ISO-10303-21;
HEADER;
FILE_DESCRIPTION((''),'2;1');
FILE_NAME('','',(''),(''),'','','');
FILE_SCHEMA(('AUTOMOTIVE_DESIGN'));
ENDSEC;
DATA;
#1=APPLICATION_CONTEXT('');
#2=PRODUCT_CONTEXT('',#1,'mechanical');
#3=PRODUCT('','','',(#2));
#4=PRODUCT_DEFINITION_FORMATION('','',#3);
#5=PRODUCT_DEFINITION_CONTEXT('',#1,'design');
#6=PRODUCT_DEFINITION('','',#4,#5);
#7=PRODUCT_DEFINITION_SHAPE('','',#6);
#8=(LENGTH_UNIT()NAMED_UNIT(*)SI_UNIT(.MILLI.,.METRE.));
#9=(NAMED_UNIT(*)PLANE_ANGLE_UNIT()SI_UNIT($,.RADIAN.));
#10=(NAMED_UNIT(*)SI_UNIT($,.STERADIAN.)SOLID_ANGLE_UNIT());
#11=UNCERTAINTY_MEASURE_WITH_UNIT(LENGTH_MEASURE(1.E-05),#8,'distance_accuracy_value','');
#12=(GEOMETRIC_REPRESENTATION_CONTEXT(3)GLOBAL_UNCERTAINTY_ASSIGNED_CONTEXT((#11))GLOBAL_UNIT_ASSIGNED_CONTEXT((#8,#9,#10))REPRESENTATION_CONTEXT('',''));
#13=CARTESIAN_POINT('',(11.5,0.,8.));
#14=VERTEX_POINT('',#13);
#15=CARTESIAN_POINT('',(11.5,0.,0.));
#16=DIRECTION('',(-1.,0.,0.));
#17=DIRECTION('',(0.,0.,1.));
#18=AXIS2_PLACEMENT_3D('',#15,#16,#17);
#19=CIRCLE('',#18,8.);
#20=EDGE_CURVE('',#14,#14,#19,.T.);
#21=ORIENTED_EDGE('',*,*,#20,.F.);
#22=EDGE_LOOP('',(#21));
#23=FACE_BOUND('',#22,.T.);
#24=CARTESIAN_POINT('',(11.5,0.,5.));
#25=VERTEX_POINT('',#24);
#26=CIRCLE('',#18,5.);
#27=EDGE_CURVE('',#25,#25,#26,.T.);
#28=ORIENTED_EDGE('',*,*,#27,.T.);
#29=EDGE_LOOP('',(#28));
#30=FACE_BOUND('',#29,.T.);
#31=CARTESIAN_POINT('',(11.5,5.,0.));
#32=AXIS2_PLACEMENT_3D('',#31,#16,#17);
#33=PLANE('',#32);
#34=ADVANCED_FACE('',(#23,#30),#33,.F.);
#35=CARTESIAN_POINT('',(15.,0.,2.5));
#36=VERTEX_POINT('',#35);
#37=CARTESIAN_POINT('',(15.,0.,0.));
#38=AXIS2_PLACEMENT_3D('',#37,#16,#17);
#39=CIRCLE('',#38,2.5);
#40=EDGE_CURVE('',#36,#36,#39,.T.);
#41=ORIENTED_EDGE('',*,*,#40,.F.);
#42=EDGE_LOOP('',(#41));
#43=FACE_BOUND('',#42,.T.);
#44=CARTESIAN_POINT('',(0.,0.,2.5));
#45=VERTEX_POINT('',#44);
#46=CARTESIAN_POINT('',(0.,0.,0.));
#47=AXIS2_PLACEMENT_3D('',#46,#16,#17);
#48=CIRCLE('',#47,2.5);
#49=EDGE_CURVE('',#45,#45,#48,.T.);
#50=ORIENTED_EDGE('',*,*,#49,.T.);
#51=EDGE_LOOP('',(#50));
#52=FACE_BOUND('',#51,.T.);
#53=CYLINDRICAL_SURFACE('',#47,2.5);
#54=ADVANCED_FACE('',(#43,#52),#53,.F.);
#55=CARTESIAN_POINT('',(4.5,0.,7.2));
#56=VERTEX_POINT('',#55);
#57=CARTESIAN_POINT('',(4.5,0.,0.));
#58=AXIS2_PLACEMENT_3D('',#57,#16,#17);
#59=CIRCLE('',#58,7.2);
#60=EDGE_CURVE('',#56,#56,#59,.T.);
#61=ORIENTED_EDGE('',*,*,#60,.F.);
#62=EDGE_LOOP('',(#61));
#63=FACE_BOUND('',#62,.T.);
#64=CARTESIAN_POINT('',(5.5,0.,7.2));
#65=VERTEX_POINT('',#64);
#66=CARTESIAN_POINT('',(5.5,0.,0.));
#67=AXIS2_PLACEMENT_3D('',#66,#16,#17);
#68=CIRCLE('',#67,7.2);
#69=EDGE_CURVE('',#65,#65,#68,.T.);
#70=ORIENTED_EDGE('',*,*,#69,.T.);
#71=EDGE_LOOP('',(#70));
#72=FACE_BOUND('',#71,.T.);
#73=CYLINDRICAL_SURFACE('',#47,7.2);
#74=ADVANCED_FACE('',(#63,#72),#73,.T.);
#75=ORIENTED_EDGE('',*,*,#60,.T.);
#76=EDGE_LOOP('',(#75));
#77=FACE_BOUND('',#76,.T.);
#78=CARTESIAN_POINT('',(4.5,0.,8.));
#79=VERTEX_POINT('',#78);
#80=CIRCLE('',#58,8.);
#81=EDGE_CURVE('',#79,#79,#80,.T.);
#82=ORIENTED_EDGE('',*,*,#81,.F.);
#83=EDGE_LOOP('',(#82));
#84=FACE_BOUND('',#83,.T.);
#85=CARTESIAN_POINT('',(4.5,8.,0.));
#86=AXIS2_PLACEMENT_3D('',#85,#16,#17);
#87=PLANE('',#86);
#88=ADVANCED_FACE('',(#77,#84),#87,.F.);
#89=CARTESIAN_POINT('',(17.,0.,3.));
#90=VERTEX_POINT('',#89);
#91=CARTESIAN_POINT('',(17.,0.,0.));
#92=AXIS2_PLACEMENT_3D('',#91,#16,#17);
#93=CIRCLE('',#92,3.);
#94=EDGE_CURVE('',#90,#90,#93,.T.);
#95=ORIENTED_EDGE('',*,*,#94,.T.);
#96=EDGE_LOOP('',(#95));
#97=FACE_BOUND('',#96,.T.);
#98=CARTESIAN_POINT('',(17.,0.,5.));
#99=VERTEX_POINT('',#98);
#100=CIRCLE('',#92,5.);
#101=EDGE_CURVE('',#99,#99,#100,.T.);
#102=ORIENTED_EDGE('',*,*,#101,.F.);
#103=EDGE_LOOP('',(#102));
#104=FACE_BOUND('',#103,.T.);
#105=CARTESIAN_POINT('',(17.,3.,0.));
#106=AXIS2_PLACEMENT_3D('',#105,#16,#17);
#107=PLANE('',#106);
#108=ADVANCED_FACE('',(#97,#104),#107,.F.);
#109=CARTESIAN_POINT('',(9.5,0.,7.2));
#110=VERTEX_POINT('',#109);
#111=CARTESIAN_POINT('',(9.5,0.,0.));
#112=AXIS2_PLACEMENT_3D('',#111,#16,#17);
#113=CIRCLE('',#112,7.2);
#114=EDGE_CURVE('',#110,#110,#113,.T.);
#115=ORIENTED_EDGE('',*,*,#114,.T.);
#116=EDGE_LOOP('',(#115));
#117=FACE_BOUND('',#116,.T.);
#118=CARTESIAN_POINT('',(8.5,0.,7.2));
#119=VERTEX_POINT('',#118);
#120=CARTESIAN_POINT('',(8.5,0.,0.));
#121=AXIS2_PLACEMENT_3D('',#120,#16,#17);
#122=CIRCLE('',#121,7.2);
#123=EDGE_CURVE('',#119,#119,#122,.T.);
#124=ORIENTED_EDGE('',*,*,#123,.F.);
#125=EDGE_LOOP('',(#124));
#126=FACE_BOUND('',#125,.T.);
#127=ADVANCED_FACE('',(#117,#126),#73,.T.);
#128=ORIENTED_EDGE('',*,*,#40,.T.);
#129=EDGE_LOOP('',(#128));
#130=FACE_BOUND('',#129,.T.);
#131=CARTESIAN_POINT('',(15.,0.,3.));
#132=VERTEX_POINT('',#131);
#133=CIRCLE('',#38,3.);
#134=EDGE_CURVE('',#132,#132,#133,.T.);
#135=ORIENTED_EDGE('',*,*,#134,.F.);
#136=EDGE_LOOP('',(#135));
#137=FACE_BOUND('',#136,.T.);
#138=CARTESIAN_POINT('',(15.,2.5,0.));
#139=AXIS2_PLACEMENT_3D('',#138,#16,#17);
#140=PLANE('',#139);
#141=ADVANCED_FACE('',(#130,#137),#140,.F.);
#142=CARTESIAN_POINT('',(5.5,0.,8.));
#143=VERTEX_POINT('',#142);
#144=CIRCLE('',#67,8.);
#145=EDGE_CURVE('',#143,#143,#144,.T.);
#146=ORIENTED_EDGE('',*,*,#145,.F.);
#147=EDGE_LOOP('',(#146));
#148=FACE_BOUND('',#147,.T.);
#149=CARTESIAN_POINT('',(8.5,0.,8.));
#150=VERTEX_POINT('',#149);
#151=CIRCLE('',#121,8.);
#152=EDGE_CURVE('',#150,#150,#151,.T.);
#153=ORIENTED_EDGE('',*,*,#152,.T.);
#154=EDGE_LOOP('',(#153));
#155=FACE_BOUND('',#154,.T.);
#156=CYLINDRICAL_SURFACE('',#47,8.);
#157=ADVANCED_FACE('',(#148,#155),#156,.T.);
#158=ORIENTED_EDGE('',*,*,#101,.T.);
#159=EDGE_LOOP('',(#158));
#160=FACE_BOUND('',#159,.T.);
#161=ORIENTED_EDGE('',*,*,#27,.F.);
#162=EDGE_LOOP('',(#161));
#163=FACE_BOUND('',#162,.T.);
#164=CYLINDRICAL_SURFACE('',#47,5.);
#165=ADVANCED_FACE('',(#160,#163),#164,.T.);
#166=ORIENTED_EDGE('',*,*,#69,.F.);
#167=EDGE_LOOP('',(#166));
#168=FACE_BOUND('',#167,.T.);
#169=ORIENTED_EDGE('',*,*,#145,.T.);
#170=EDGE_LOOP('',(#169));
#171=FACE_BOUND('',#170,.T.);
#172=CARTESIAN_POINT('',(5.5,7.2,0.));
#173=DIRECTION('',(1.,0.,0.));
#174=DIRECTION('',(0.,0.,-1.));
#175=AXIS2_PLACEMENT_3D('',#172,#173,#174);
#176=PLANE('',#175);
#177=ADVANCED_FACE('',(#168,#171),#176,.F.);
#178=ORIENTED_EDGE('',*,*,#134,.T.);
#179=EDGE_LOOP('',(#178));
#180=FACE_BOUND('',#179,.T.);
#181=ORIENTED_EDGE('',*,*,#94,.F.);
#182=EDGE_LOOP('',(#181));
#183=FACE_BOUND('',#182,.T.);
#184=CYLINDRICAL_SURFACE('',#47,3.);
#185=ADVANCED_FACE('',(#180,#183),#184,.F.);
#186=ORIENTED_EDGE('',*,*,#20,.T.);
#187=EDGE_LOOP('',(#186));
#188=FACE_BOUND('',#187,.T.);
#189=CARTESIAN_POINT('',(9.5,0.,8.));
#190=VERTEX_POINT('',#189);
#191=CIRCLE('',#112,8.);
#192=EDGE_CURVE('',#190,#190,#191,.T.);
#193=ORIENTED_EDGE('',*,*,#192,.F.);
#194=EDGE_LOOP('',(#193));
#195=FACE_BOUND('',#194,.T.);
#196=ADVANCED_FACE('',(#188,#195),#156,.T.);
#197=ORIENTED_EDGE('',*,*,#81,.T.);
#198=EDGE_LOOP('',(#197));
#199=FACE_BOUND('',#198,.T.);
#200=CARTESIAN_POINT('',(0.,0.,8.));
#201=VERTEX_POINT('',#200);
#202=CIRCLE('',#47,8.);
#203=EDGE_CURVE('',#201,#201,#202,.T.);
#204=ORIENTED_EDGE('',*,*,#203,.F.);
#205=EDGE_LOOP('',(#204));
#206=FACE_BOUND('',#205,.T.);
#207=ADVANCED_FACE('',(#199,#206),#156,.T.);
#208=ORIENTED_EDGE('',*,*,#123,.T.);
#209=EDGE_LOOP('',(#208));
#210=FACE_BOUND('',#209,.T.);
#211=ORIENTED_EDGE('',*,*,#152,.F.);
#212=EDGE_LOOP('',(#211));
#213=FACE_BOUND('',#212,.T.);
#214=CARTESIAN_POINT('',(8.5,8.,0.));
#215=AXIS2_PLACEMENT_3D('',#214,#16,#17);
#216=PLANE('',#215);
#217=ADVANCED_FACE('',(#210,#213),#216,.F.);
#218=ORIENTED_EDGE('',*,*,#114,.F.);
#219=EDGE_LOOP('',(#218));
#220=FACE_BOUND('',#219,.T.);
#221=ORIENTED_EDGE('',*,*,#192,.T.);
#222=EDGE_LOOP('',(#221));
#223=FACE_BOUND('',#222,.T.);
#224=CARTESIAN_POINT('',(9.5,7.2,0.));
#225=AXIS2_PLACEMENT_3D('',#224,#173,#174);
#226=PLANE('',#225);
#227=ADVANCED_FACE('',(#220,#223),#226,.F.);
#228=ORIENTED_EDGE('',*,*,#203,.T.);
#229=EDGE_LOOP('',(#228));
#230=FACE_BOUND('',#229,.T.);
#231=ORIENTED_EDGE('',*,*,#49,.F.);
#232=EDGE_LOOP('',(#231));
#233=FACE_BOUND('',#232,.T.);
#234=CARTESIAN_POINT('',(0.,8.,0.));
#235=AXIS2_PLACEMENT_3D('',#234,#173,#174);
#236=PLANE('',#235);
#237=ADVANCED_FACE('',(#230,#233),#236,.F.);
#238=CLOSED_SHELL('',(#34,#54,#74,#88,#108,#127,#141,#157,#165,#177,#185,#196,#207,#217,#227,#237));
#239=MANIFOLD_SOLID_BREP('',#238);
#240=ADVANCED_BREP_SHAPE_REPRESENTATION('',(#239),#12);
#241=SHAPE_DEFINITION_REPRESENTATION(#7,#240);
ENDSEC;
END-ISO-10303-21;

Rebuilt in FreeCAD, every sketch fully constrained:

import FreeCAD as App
import Part
import Sketcher

doc = App.newDocument("Part")
body = doc.addObject("PartDesign::Body", "Body")

# Sketch on XY plane
sketch1 = body.newObject("Sketcher::SketchObject", "Sketch")
sketch1.AttachmentSupport = (doc.getObject("XY_Plane"), [""])
sketch1.MapMode = "FlatFace"
sketch1.addGeometry([
    Part.LineSegment(App.Vector(0, 8, 0), App.Vector(0, 2.5, 0)),  # 0
    Part.LineSegment(App.Vector(0, 2.5, 0), App.Vector(15, 2.5, 0)),  # 1
    Part.LineSegment(App.Vector(15, 2.5, 0), App.Vector(15, 3, 0)),  # 2
    Part.LineSegment(App.Vector(15, 3, 0), App.Vector(17, 3, 0)),  # 3
    Part.LineSegment(App.Vector(17, 3, 0), App.Vector(17, 5, 0)),  # 4
    Part.LineSegment(App.Vector(17, 5, 0), App.Vector(11.5, 5, 0)),  # 5
    Part.LineSegment(App.Vector(11.5, 5, 0), App.Vector(11.5, 8, 0)),  # 6
    Part.LineSegment(App.Vector(11.5, 8, 0), App.Vector(9.5, 8, 0)),  # 7
    Part.LineSegment(App.Vector(9.5, 8, 0), App.Vector(9.5, 7.2, 0)),  # 8
    Part.LineSegment(App.Vector(9.5, 7.2, 0), App.Vector(8.5, 7.2, 0)),  # 9
    Part.LineSegment(App.Vector(8.5, 7.2, 0), App.Vector(8.5, 8, 0)),  # 10
    Part.LineSegment(App.Vector(8.5, 8, 0), App.Vector(5.5, 8, 0)),  # 11
    Part.LineSegment(App.Vector(5.5, 8, 0), App.Vector(5.5, 7.2, 0)),  # 12
    Part.LineSegment(App.Vector(5.5, 7.2, 0), App.Vector(4.5, 7.2, 0)),  # 13
    Part.LineSegment(App.Vector(4.5, 7.2, 0), App.Vector(4.5, 8, 0)),  # 14
    Part.LineSegment(App.Vector(4.5, 8, 0), App.Vector(0, 8, 0)),  # 15
], False)
sketch1.addConstraint([
    Sketcher.Constraint("Coincident", 0, 2, 1, 1),
    Sketcher.Constraint("Coincident", 1, 2, 2, 1),
    Sketcher.Constraint("Coincident", 2, 2, 3, 1),
    Sketcher.Constraint("Coincident", 3, 2, 4, 1),
    Sketcher.Constraint("Coincident", 4, 2, 5, 1),
    Sketcher.Constraint("Coincident", 5, 2, 6, 1),
    Sketcher.Constraint("Coincident", 6, 2, 7, 1),
    Sketcher.Constraint("Coincident", 7, 2, 8, 1),
    Sketcher.Constraint("Coincident", 8, 2, 9, 1),
    Sketcher.Constraint("Coincident", 9, 2, 10, 1),
    Sketcher.Constraint("Coincident", 10, 2, 11, 1),
    Sketcher.Constraint("Coincident", 11, 2, 12, 1),
    Sketcher.Constraint("Coincident", 12, 2, 13, 1),
    Sketcher.Constraint("Coincident", 13, 2, 14, 1),
    Sketcher.Constraint("Coincident", 14, 2, 15, 1),
    Sketcher.Constraint("Coincident", 15, 2, 0, 1),
    Sketcher.Constraint("Vertical", 0),
    Sketcher.Constraint("Horizontal", 1),
    Sketcher.Constraint("Vertical", 2),
    Sketcher.Constraint("Horizontal", 3),
    Sketcher.Constraint("Vertical", 4),
    Sketcher.Constraint("Horizontal", 5),
    Sketcher.Constraint("Vertical", 6),
    Sketcher.Constraint("Horizontal", 7),
    Sketcher.Constraint("Vertical", 8),
    Sketcher.Constraint("Horizontal", 9),
    Sketcher.Constraint("Vertical", 10),
    Sketcher.Constraint("Horizontal", 11),
    Sketcher.Constraint("Vertical", 12),
    Sketcher.Constraint("Horizontal", 13),
    Sketcher.Constraint("Vertical", 14),
    Sketcher.Constraint("Horizontal", 15),
    Sketcher.Constraint("PointOnObject", 0, 2, -2),
    Sketcher.Constraint("Horizontal", 7, 2, 10, 2),
    Sketcher.Constraint("Horizontal", 9, 2, 12, 2),
    Sketcher.Constraint("Horizontal", 11, 2, 14, 2),
    Sketcher.Constraint("Equal", 3, 7),
    Sketcher.Constraint("Equal", 9, 13),
    Sketcher.Constraint("Equal", 5, 0),
    Sketcher.Constraint("Equal", 7, 4),
    Sketcher.Constraint("Equal", 11, 6),
    Sketcher.Constraint("DistanceX", 1, 1, 1, 2, 15.0),
    Sketcher.Constraint("DistanceX", 3, 1, 3, 2, 2.0),
    Sketcher.Constraint("DistanceX", 9, 2, 9, 1, 1.0),
    Sketcher.Constraint("DistanceX", 11, 2, 11, 1, 3.0),
    Sketcher.Constraint("DistanceX", 5, 2, 5, 1, 5.5),
    Sketcher.Constraint("DistanceY", 8, 2, 8, 1, 0.8),
    Sketcher.Constraint("DistanceY", -1, 1, 2, 2, 3.0),
])
revolution = body.newObject("PartDesign::Revolution", "Revolution")
revolution.Profile = sketch1
revolution.ReferenceAxis = (sketch1, ["H_Axis"])
revolution.Angle = 360

doc.recompute()
